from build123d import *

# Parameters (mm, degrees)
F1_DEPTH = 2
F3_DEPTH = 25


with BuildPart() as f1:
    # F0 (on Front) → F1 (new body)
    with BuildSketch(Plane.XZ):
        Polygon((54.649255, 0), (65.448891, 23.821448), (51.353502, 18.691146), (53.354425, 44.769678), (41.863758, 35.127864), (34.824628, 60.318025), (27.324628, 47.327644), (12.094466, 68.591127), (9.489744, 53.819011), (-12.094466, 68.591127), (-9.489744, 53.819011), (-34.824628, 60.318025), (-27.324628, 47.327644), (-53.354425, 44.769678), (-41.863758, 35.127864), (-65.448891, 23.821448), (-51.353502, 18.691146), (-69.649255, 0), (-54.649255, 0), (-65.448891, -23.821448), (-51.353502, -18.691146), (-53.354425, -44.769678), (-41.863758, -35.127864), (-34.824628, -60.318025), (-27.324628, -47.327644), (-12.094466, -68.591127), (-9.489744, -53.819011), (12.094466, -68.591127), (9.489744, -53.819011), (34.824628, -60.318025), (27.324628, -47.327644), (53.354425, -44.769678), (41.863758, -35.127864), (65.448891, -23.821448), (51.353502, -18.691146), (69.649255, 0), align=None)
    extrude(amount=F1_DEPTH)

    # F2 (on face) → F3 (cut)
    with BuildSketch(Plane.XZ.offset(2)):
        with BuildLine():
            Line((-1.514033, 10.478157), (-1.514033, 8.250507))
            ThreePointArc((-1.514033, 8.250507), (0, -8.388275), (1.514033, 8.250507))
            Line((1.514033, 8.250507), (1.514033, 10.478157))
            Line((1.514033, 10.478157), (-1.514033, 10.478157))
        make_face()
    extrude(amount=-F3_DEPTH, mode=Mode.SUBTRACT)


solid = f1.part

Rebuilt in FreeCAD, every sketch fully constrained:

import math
import FreeCAD as App
import Part
import Sketcher

V = App.Vector
Q = App.Units.Quantity

doc = App.newDocument("Part")
body = doc.addObject("PartDesign::Body", "Body")

# Sketch on XZ plane
sketch1 = body.newObject("Sketcher::SketchObject", "Sketch")
sketch1.AttachmentSupport = (doc.getObject("XZ_Plane"), [""])
sketch1.MapMode = "FlatFace"
sketch1.addGeometry([
    Part.LineSegment(V(54.649255, 0, 0), V(65.448891, 23.821448, 0)),  # 0
    Part.LineSegment(V(65.448891, 23.821448, 0), V(51.353502, 18.691146, 0)),  # 1
    Part.LineSegment(V(51.353502, 18.691146, 0), V(53.354425, 44.769678, 0)),  # 2
    Part.LineSegment(V(53.354425, 44.769678, 0), V(41.863758, 35.127864, 0)),  # 3
    Part.LineSegment(V(41.863758, 35.127864, 0), V(34.824628, 60.318025, 0)),  # 4
    Part.LineSegment(V(34.824628, 60.318025, 0), V(27.324628, 47.327644, 0)),  # 5
    Part.LineSegment(V(27.324628, 47.327644, 0), V(12.094466, 68.591127, 0)),  # 6
    Part.LineSegment(V(12.094466, 68.591127, 0), V(9.489744, 53.819011, 0)),  # 7
    Part.LineSegment(V(9.489744, 53.819011, 0), V(-12.094466, 68.591127, 0)),  # 8
    Part.LineSegment(V(-12.094466, 68.591127, 0), V(-9.489744, 53.819011, 0)),  # 9
    Part.LineSegment(V(-9.489744, 53.819011, 0), V(-34.824628, 60.318025, 0)),  # 10
    Part.LineSegment(V(-34.824628, 60.318025, 0), V(-27.324628, 47.327644, 0)),  # 11
    Part.LineSegment(V(-27.324628, 47.327644, 0), V(-53.354425, 44.769678, 0)),  # 12
    Part.LineSegment(V(-53.354425, 44.769678, 0), V(-41.863758, 35.127864, 0)),  # 13
    Part.LineSegment(V(-41.863758, 35.127864, 0), V(-65.448891, 23.821448, 0)),  # 14
    Part.LineSegment(V(-65.448891, 23.821448, 0), V(-51.353502, 18.691146, 0)),  # 15
    Part.LineSegment(V(-51.353502, 18.691146, 0), V(-69.649255, 0, 0)),  # 16
    Part.LineSegment(V(-69.649255, 0, 0), V(-54.649255, 0, 0)),  # 17
    Part.LineSegment(V(-54.649255, 0, 0), V(-65.448891, -23.821448, 0)),  # 18
    Part.LineSegment(V(-65.448891, -23.821448, 0), V(-51.353502, -18.691146, 0)),  # 19
    Part.LineSegment(V(-51.353502, -18.691146, 0), V(-53.354425, -44.769678, 0)),  # 20
    Part.LineSegment(V(-53.354425, -44.769678, 0), V(-41.863758, -35.127864, 0)),  # 21
    Part.LineSegment(V(-41.863758, -35.127864, 0), V(-34.824628, -60.318025, 0)),  # 22
    Part.LineSegment(V(-34.824628, -60.318025, 0), V(-27.324628, -47.327644, 0)),  # 23
    Part.LineSegment(V(-27.324628, -47.327644, 0), V(-12.094466, -68.591127, 0)),  # 24
    Part.LineSegment(V(-12.094466, -68.591127, 0), V(-9.489744, -53.819011, 0)),  # 25
    Part.LineSegment(V(-9.489744, -53.819011, 0), V(12.094466, -68.591127, 0)),  # 26
    Part.LineSegment(V(12.094466, -68.591127, 0), V(9.489744, -53.819011, 0)),  # 27
    Part.LineSegment(V(9.489744, -53.819011, 0), V(34.824628, -60.318025, 0)),  # 28
    Part.LineSegment(V(34.824628, -60.318025, 0), V(27.324628, -47.327644, 0)),  # 29
    Part.LineSegment(V(27.324628, -47.327644, 0), V(53.354425, -44.769678, 0)),  # 30
    Part.LineSegment(V(53.354425, -44.769678, 0), V(41.863758, -35.127864, 0)),  # 31
    Part.LineSegment(V(41.863758, -35.127864, 0), V(65.448891, -23.821448, 0)),  # 32
    Part.LineSegment(V(65.448891, -23.821448, 0), V(51.353502, -18.691146, 0)),  # 33
    Part.LineSegment(V(51.353502, -18.691146, 0), V(69.649255, 0, 0)),  # 34
    Part.LineSegment(V(69.649255, 0, 0), V(54.649255, 0, 0)),  # 35
], False)
sketch1.addConstraint([
    Sketcher.Constraint("Coincident", 0, 2, 1, 1),
    Sketcher.Constraint("Coincident", 1, 2, 2, 1),
    Sketcher.Constraint("Coincident", 2, 2, 3, 1),
    Sketcher.Constraint("Coincident", 3, 2, 4, 1),
    Sketcher.Constraint("Coincident", 4, 2, 5, 1),
    Sketcher.Constraint("Coincident", 5, 2, 6, 1),
    Sketcher.Constraint("Coincident", 6, 2, 7, 1),
    Sketcher.Constraint("Coincident", 7, 2, 8, 1),
    Sketcher.Constraint("Coincident", 8, 2, 9, 1),
    Sketcher.Constraint("Coincident", 9, 2, 10, 1),
    Sketcher.Constraint("Coincident", 10, 2, 11, 1),
    Sketcher.Constraint("Coincident", 11, 2, 12, 1),
    Sketcher.Constraint("Coincident", 12, 2, 13, 1),
    Sketcher.Constraint("Coincident", 13, 2, 14, 1),
    Sketcher.Constraint("Coincident", 14, 2, 15, 1),
    Sketcher.Constraint("Coincident", 15, 2, 16, 1),
    Sketcher.Constraint("Coincident", 16, 2, 17, 1),
    Sketcher.Constraint("Coincident", 17, 2, 18, 1),
    Sketcher.Constraint("Coincident", 18, 2, 19, 1),
    Sketcher.Constraint("Coincident", 19, 2, 20, 1),
    Sketcher.Constraint("Coincident", 20, 2, 21, 1),
    Sketcher.Constraint("Coincident", 21, 2, 22, 1),
    Sketcher.Constraint("Coincident", 22, 2, 23, 1),
    Sketcher.Constraint("Coincident", 23, 2, 24, 1),
    Sketcher.Constraint("Coincident", 24, 2, 25, 1),
    Sketcher.Constraint("Coincident", 25, 2, 26, 1),
    Sketcher.Constraint("Coincident", 26, 2, 27, 1),
    Sketcher.Constraint("Coincident", 27, 2, 28, 1),
    Sketcher.Constraint("Coincident", 28, 2, 29, 1),
    Sketcher.Constraint("Coincident", 29, 2, 30, 1),
    Sketcher.Constraint("Coincident", 30, 2, 31, 1),
    Sketcher.Constraint("Coincident", 31, 2, 32, 1),
    Sketcher.Constraint("Coincident", 32, 2, 33, 1),
    Sketcher.Constraint("Coincident", 33, 2, 34, 1),
    Sketcher.Constraint("Coincident", 34, 2, 35, 1),
    Sketcher.Constraint("Coincident", 35, 2, 0, 1),
    Sketcher.Constraint("Horizontal", 17),
    Sketcher.Constraint("Horizontal", 35),
    Sketcher.Constraint("Symmetric", 0, 2, 18, 2, -1, 1),
    Sketcher.Constraint("Symmetric", 1, 2, 19, 2, -1, 1),
    Sketcher.Constraint("Symmetric", 2, 2, 20, 2, -1, 1),
    Sketcher.Constraint("Symmetric", 3, 2, 21, 2, -1, 1),
    Sketcher.Constraint("Symmetric", 4, 2, 22, 2, -1, 1),
    Sketcher.Constraint("Symmetric", 5, 2, 23, 2, -1, 1),
    Sketcher.Constraint("Symmetric", 6, 2, 24, 2, -1, 1),
    Sketcher.Constraint("Symmetric", 7, 2, 25, 2, -1, 1),
    Sketcher.Constraint("Symmetric", 8, 2, 26, 2, -1, 1),
    Sketcher.Constraint("Symmetric", 9, 2, 27, 2, -1, 1),
    Sketcher.Constraint("Symmetric", 10, 2, 28, 2, -1, 1),
    Sketcher.Constraint("Symmetric", 11, 2, 29, 2, -1, 1),
    Sketcher.Constraint("Symmetric", 12, 2, 30, 2, -1, 1),
    Sketcher.Constraint("Symmetric", 13, 2, 31, 2, -1, 1),
    Sketcher.Constraint("Symmetric", 14, 2, 32, 2, -1, 1),
    Sketcher.Constraint("Symmetric", 15, 2, 33, 2, -1, 1),
    Sketcher.Constraint("Symmetric", 16, 2, 34, 2, -1, 1),
    Sketcher.Constraint("Symmetric", 6, 2, 8, 2, -2),
    Sketcher.Constraint("Symmetric", 7, 2, 9, 2, -2),
    Sketcher.Constraint("Symmetric", 4, 2, 10, 2, -2),
    Sketcher.Constraint("Symmetric", 5, 2, 11, 2, -2),
    Sketcher.Constraint("Symmetric", 2, 2, 12, 2, -2),
    Sketcher.Constraint("Symmetric", 3, 2, 13, 2, -2),
    Sketcher.Constraint("Symmetric", 0, 2, 14, 2, -2),
    Sketcher.Constraint("Symmetric", 1, 2, 15, 2, -2),
    Sketcher.Constraint("Symmetric", 17, 2, 35, 2, -2),
    Sketcher.Constraint("Equal", 0, 2),
    Sketcher.Constraint("Equal", 1, 3),
    Sketcher.Constraint("Equal", 2, 4),
    Sketcher.Constraint("Equal", 3, 5),
    Sketcher.Constraint("Equal", 4, 6),
    Sketcher.Constraint("Equal", 5, 7),
    Sketcher.Constraint("Equal", 6, 8),
    Sketcher.Constraint("Equal", 8, 10),
    Sketcher.Constraint("Equal", 10, 12),
    Sketcher.Constraint("Equal", 12, 14),
    Sketcher.Constraint("Equal", 14, 16),
    Sketcher.Constraint("DistanceX", 17, 1, 17, 2, Q("15 mm")),
    Sketcher.Constraint("Angle", 1, Q("-160 deg")),
    Sketcher.Constraint("Angle", 3, Q("-140.000001 deg")),
    Sketcher.Constraint("Angle", 5, Q("-120 deg")),
    Sketcher.Constraint("Angle", 7, Q("-99.999998 deg")),
    Sketcher.Constraint("Distance", 1, Q("15 mm")),
    Sketcher.Constraint("Distance", 0, Q("26.155182 mm")),
])
pad1 = body.newObject("PartDesign::Pad", "Pad")
pad1.Profile = sketch1
pad1.Length = 2

# Sketch on XZ plane
sketch2 = body.newObject("Sketcher::SketchObject", "Sketch001")
sketch2.AttachmentSupport = (doc.getObject("XZ_Plane"), [""])
sketch2.MapMode = "FlatFace"
sketch2.AttachmentOffset = App.Placement(V(0, 0, 2), App.Rotation())
sketch2.addGeometry([
    Part.LineSegment(V(-1.514033, 10.478157, 0), V(-1.514033, 8.250507, 0)),
    Part.ArcOfCircle(Part.Circle(V(0, 0, 0), V(0, 0, 1), 8.388275), math.radians(100.398533), math.radians(439.601467)),
    Part.LineSegment(V(1.514033, 8.250507, 0), V(1.514033, 10.478157, 0)),
    Part.LineSegment(V(1.514033, 10.478157, 0), V(-1.514033, 10.478157, 0)),
], False)
sketch2.addConstraint([
    Sketcher.Constraint("Coincident", 0, 2, 1, 1),
    Sketcher.Constraint("Coincident", 1, 2, 2, 1),
    Sketcher.Constraint("Coincident", 2, 2, 3, 1),
    Sketcher.Constraint("Coincident", 3, 2, 0, 1),
    Sketcher.Constraint("Vertical", 0),
    Sketcher.Constraint("Vertical", 2),
    Sketcher.Constraint("Horizontal", 3),
    Sketcher.Constraint("Coincident", 1, 3, -1, 1),
    Sketcher.Constraint("Horizontal", 0, 2, 1, 2),
    Sketcher.Constraint("Radius", 1, Q("8.388275 mm")),
    Sketcher.Constraint("DistanceY", 0, 2, 0, 1, Q("2.22765 mm")),
    Sketcher.Constraint("DistanceX", 3, 2, 3, 1, Q("3.028066 mm")),
])
pocket1 = body.newObject("PartDesign::Pocket", "Pocket")
pocket1.Profile = sketch2
pocket1.Length = 25

doc.recompute()
